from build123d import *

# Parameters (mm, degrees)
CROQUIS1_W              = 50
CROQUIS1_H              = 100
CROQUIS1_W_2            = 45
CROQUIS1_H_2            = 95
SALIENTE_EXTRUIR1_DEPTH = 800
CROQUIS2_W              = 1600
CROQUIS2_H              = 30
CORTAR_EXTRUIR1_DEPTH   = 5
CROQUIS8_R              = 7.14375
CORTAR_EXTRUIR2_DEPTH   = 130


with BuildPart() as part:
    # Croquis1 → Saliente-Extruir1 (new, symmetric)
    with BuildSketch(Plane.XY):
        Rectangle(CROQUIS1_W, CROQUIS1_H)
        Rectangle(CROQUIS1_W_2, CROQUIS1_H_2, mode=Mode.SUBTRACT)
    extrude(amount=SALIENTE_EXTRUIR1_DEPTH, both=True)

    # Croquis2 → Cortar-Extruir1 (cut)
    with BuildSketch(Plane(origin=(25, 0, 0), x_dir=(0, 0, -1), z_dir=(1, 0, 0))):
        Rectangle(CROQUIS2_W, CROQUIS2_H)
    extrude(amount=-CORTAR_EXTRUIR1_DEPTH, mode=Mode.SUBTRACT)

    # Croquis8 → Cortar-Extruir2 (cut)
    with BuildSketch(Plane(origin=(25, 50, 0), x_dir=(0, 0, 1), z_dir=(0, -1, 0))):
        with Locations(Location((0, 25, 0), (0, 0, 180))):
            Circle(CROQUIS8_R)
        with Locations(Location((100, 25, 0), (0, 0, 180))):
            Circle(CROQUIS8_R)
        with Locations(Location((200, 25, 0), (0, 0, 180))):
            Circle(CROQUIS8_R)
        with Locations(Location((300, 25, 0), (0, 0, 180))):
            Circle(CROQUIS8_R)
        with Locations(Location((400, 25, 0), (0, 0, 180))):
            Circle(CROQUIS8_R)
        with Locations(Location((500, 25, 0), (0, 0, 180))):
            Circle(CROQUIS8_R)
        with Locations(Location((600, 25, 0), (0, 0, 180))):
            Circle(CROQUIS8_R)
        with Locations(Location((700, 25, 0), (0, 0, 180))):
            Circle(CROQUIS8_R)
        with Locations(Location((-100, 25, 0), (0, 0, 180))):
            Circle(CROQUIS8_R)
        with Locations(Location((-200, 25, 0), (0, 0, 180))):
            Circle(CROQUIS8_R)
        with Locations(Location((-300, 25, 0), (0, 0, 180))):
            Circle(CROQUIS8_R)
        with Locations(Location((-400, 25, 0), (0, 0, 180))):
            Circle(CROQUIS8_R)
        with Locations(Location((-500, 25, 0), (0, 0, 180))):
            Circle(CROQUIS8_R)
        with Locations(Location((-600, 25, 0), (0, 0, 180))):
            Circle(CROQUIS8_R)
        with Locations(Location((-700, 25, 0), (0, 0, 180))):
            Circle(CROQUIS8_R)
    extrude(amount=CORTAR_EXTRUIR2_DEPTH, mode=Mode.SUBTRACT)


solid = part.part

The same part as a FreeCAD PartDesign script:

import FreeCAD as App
import Part
import Sketcher
Q = App.Units.Quantity

doc = App.newDocument("Part")
params = doc.addObject("Spreadsheet::Sheet", "Params")
for row, (alias, value) in enumerate([
    ("sketch1_width", "50 mm"),
    ("sketch1_width2", "45 mm"),
    ("sketch1_height", "100 mm"),
    ("sketch1_height2", "95 mm"),
    ("pad1_length", "1600 mm"),
    ("sketch2_width", "30 mm"),
    ("sketch2_height", "1600 mm"),
    ("pocket1_length", "5 mm"),
    ("pocket2_length", "130 mm"),
], start=1):
    params.set(f"A{row}", alias)
    params.set(f"B{row}", "=" + value)
    params.setAlias(f"B{row}", alias)

body = doc.addObject("PartDesign::Body", "Body")

# Sketch on XY plane
sketch1 = body.newObject("Sketcher::SketchObject", "Sketch")
sketch1.AttachmentSupport = (doc.getObject("XY_Plane"), [""])
sketch1.MapMode = "FlatFace"
sketch1.addGeometry([
    Part.LineSegment(App.Vector(-25, 50, 0), App.Vector(-25, -50, 0)),  # 0
    Part.LineSegment(App.Vector(-25, -50, 0), App.Vector(25, -50, 0)),  # 1
    Part.LineSegment(App.Vector(25, -50, 0), App.Vector(25, 50, 0)),  # 2
    Part.LineSegment(App.Vector(25, 50, 0), App.Vector(-25, 50, 0)),  # 3
    Part.LineSegment(App.Vector(22, -48, 0), App.Vector(-22, -48, 0)),  # 4
    Part.LineSegment(App.Vector(-22, -48, 0), App.Vector(-22, 48, 0)),  # 5
    Part.LineSegment(App.Vector(-22, 48, 0), App.Vector(22, 48, 0)),  # 6
    Part.LineSegment(App.Vector(22, 48, 0), App.Vector(22, -48, 0)),  # 7
], False)
sketch1.addConstraint([
    Sketcher.Constraint("Coincident", 0, 2, 1, 1),
    Sketcher.Constraint("Coincident", 1, 2, 2, 1),
    Sketcher.Constraint("Coincident", 2, 2, 3, 1),
    Sketcher.Constraint("Coincident", 3, 2, 0, 1),
    Sketcher.Constraint("Coincident", 4, 2, 5, 1),
    Sketcher.Constraint("Coincident", 5, 2, 6, 1),
    Sketcher.Constraint("Coincident", 6, 2, 7, 1),
    Sketcher.Constraint("Coincident", 7, 2, 4, 1),
    Sketcher.Constraint("Vertical", 0),
    Sketcher.Constraint("Horizontal", 1),
    Sketcher.Constraint("Vertical", 2),
    Sketcher.Constraint("Horizontal", 3),
    Sketcher.Constraint("Horizontal", 4),
    Sketcher.Constraint("Vertical", 5),
    Sketcher.Constraint("Horizontal", 6),
    Sketcher.Constraint("Vertical", 7),
    Sketcher.Constraint("Symmetric", 0, 2, 2, 2, -1, 1),
    Sketcher.Constraint("Symmetric", 4, 2, 6, 2, -1, 1),
    Sketcher.Constraint("DistanceX", 1, 1, 1, 2, Q("50 mm")),
    Sketcher.Constraint("DistanceX", 4, 2, 4, 1, Q("45 mm")),
    Sketcher.Constraint("DistanceY", 0, 2, 0, 1, Q("100 mm")),
    Sketcher.Constraint("DistanceY", 5, 1, 5, 2, Q("95 mm")),
])
sketch1.setExpression("Constraints[18]", "Params.sketch1_width")
sketch1.setExpression("Constraints[19]", "Params.sketch1_width2")
sketch1.setExpression("Constraints[20]", "Params.sketch1_height")
sketch1.setExpression("Constraints[21]", "Params.sketch1_height2")
pad1 = body.newObject("PartDesign::Pad", "Pad")
pad1.Profile = sketch1
pad1.setExpression("Length", "Params.pad1_length")
pad1.Midplane = True

# Sketch on YZ plane
sketch2 = body.newObject("Sketcher::SketchObject", "Sketch001")
sketch2.AttachmentSupport = (doc.getObject("YZ_Plane"), [""])
sketch2.MapMode = "FlatFace"
sketch2.AttachmentOffset = App.Placement(App.Vector(0, 0, 25), App.Rotation())
sketch2.addGeometry([
    Part.LineSegment(App.Vector(15, 800, 0), App.Vector(-15, 800, 0)),
    Part.LineSegment(App.Vector(-15, 800, 0), App.Vector(-15, -800, 0)),
    Part.LineSegment(App.Vector(-15, -800, 0), App.Vector(15, -800, 0)),
    Part.LineSegment(App.Vector(15, -800, 0), App.Vector(15, 800, 0)),
], False)
sketch2.addConstraint([
    Sketcher.Constraint("Coincident", 0, 2, 1, 1),
    Sketcher.Constraint("Coincident", 1, 2, 2, 1),
    Sketcher.Constraint("Coincident", 2, 2, 3, 1),
    Sketcher.Constraint("Coincident", 3, 2, 0, 1),
    Sketcher.Constraint("Horizontal", 0),
    Sketcher.Constraint("Vertical", 1),
    Sketcher.Constraint("Horizontal", 2),
    Sketcher.Constraint("Vertical", 3),
    Sketcher.Constraint("Symmetric", 0, 2, 2, 2, -1, 1),
    Sketcher.Constraint("DistanceX", 0, 2, 0, 1, Q("30 mm")),
    Sketcher.Constraint("DistanceY", 1, 2, 1, 1, Q("1600 mm")),
])
sketch2.setExpression("Constraints[9]", "Params.sketch2_width")
sketch2.setExpression("Constraints[10]", "Params.sketch2_height")
pocket1 = body.newObject("PartDesign::Pocket", "Pocket")
pocket1.Profile = sketch2
pocket1.setExpression("Length", "Params.pocket1_length")

# Sketch on XZ plane
sketch3 = body.newObject("Sketcher::SketchObject", "Sketch002")
sketch3.AttachmentSupport = (doc.getObject("XZ_Plane"), [""])
sketch3.MapMode = "FlatFace"
sketch3.AttachmentOffset = App.Placement(App.Vector(0, 0, -50), App.Rotation())
sketch3.addGeometry([
    Part.Circle(App.Vector(0, 0, 0), App.Vector(0, 0, 1), 7),  # 0
    Part.Circle(App.Vector(0, 100, 0), App.Vector(0, 0, 1), 7),  # 1
    Part.Circle(App.Vector(0, 200, 0), App.Vector(0, 0, 1), 7),  # 2
    Part.Circle(App.Vector(0, 300, 0), App.Vector(0, 0, 1), 7),  # 3
    Part.Circle(App.Vector(0, 400, 0), App.Vector(0, 0, 1), 7),  # 4
    Part.Circle(App.Vector(0, 500, 0), App.Vector(0, 0, 1), 7),  # 5
    Part.Circle(App.Vector(0, 600, 0), App.Vector(0, 0, 1), 7),  # 6
    Part.Circle(App.Vector(0, 700, 0), App.Vector(0, 0, 1), 7),  # 7
    Part.Circle(App.Vector(0, -100, 0), App.Vector(0, 0, 1), 7),  # 8
    Part.Circle(App.Vector(0, -200, 0), App.Vector(0, 0, 1), 7),  # 9
    Part.Circle(App.Vector(0, -300, 0), App.Vector(0, 0, 1), 7),  # 10
    Part.Circle(App.Vector(0, -400, 0), App.Vector(0, 0, 1), 7),  # 11
    Part.Circle(App.Vector(0, -500, 0), App.Vector(0, 0, 1), 7),  # 12
    Part.Circle(App.Vector(0, -600, 0), App.Vector(0, 0, 1), 7),  # 13
    Part.Circle(App.Vector(0, -700, 0), App.Vector(0, 0, 1), 7),  # 14
], False)
sketch3.addConstraint([
    Sketcher.Constraint("Coincident", 0, 3, -1, 1),
    Sketcher.Constraint("Equal", 0, 1),
    Sketcher.Constraint("Equal", 1, 2),
    Sketcher.Constraint("Equal", 2, 3),
    Sketcher.Constraint("Equal", 3, 4),
    Sketcher.Constraint("Equal", 4, 5),
    Sketcher.Constraint("Equal", 5, 6),
    Sketcher.Constraint("Equal", 6, 7),
    Sketcher.Constraint("Equal", 7, 8),
    Sketcher.Constraint("Equal", 8, 9),
    Sketcher.Constraint("Equal", 9, 10),
    Sketcher.Constraint("Equal", 10, 11),
    Sketcher.Constraint("Equal", 11, 12),
    Sketcher.Constraint("Equal", 12, 13),
    Sketcher.Constraint("Equal", 13, 14),
    Sketcher.Constraint("Symmetric", 1, 3, 8, 3, -1, 1),
    Sketcher.Constraint("Symmetric", 2, 3, 9, 3, -1, 1),
    Sketcher.Constraint("Symmetric", 3, 3, 10, 3, -1, 1),
    Sketcher.Constraint("Symmetric", 4, 3, 11, 3, -1, 1),
    Sketcher.Constraint("Symmetric", 5, 3, 12, 3, -1, 1),
    Sketcher.Constraint("Symmetric", 6, 3, 13, 3, -1, 1),
    Sketcher.Constraint("Symmetric", 7, 3, 14, 3, -1, 1),
    Sketcher.Constraint("PointOnObject", 1, 3, -2),
    Sketcher.Constraint("PointOnObject", 2, 3, -2),
    Sketcher.Constraint("PointOnObject", 3, 3, -2),
    Sketcher.Constraint("PointOnObject", 4, 3, -2),
    Sketcher.Constraint("PointOnObject", 5, 3, -2),
    Sketcher.Constraint("PointOnObject", 6, 3, -2),
    Sketcher.Constraint("PointOnObject", 7, 3, -2),
    Sketcher.Constraint("DistanceY", -1, 1, 1, 3, Q("100 mm")),
    Sketcher.Constraint("DistanceY", -1, 1, 2, 3, Q("200 mm")),
    Sketcher.Constraint("DistanceY", -1, 1, 3, 3, Q("300 mm")),
    Sketcher.Constraint("DistanceY", -1, 1, 4, 3, Q("400 mm")),
    Sketcher.Constraint("DistanceY", -1, 1, 5, 3, Q("500 mm")),
    Sketcher.Constraint("DistanceY", -1, 1, 6, 3, Q("600 mm")),
    Sketcher.Constraint("DistanceY", -1, 1, 7, 3, Q("700 mm")),
    Sketcher.Constraint("Diameter", 0, Q("14.2875 mm")),
])
pocket2 = body.newObject("PartDesign::Pocket", "Pocket001")
pocket2.Profile = sketch3
pocket2.setExpression("Length", "Params.pocket2_length")
pocket2.Reversed = True

doc.recompute()
